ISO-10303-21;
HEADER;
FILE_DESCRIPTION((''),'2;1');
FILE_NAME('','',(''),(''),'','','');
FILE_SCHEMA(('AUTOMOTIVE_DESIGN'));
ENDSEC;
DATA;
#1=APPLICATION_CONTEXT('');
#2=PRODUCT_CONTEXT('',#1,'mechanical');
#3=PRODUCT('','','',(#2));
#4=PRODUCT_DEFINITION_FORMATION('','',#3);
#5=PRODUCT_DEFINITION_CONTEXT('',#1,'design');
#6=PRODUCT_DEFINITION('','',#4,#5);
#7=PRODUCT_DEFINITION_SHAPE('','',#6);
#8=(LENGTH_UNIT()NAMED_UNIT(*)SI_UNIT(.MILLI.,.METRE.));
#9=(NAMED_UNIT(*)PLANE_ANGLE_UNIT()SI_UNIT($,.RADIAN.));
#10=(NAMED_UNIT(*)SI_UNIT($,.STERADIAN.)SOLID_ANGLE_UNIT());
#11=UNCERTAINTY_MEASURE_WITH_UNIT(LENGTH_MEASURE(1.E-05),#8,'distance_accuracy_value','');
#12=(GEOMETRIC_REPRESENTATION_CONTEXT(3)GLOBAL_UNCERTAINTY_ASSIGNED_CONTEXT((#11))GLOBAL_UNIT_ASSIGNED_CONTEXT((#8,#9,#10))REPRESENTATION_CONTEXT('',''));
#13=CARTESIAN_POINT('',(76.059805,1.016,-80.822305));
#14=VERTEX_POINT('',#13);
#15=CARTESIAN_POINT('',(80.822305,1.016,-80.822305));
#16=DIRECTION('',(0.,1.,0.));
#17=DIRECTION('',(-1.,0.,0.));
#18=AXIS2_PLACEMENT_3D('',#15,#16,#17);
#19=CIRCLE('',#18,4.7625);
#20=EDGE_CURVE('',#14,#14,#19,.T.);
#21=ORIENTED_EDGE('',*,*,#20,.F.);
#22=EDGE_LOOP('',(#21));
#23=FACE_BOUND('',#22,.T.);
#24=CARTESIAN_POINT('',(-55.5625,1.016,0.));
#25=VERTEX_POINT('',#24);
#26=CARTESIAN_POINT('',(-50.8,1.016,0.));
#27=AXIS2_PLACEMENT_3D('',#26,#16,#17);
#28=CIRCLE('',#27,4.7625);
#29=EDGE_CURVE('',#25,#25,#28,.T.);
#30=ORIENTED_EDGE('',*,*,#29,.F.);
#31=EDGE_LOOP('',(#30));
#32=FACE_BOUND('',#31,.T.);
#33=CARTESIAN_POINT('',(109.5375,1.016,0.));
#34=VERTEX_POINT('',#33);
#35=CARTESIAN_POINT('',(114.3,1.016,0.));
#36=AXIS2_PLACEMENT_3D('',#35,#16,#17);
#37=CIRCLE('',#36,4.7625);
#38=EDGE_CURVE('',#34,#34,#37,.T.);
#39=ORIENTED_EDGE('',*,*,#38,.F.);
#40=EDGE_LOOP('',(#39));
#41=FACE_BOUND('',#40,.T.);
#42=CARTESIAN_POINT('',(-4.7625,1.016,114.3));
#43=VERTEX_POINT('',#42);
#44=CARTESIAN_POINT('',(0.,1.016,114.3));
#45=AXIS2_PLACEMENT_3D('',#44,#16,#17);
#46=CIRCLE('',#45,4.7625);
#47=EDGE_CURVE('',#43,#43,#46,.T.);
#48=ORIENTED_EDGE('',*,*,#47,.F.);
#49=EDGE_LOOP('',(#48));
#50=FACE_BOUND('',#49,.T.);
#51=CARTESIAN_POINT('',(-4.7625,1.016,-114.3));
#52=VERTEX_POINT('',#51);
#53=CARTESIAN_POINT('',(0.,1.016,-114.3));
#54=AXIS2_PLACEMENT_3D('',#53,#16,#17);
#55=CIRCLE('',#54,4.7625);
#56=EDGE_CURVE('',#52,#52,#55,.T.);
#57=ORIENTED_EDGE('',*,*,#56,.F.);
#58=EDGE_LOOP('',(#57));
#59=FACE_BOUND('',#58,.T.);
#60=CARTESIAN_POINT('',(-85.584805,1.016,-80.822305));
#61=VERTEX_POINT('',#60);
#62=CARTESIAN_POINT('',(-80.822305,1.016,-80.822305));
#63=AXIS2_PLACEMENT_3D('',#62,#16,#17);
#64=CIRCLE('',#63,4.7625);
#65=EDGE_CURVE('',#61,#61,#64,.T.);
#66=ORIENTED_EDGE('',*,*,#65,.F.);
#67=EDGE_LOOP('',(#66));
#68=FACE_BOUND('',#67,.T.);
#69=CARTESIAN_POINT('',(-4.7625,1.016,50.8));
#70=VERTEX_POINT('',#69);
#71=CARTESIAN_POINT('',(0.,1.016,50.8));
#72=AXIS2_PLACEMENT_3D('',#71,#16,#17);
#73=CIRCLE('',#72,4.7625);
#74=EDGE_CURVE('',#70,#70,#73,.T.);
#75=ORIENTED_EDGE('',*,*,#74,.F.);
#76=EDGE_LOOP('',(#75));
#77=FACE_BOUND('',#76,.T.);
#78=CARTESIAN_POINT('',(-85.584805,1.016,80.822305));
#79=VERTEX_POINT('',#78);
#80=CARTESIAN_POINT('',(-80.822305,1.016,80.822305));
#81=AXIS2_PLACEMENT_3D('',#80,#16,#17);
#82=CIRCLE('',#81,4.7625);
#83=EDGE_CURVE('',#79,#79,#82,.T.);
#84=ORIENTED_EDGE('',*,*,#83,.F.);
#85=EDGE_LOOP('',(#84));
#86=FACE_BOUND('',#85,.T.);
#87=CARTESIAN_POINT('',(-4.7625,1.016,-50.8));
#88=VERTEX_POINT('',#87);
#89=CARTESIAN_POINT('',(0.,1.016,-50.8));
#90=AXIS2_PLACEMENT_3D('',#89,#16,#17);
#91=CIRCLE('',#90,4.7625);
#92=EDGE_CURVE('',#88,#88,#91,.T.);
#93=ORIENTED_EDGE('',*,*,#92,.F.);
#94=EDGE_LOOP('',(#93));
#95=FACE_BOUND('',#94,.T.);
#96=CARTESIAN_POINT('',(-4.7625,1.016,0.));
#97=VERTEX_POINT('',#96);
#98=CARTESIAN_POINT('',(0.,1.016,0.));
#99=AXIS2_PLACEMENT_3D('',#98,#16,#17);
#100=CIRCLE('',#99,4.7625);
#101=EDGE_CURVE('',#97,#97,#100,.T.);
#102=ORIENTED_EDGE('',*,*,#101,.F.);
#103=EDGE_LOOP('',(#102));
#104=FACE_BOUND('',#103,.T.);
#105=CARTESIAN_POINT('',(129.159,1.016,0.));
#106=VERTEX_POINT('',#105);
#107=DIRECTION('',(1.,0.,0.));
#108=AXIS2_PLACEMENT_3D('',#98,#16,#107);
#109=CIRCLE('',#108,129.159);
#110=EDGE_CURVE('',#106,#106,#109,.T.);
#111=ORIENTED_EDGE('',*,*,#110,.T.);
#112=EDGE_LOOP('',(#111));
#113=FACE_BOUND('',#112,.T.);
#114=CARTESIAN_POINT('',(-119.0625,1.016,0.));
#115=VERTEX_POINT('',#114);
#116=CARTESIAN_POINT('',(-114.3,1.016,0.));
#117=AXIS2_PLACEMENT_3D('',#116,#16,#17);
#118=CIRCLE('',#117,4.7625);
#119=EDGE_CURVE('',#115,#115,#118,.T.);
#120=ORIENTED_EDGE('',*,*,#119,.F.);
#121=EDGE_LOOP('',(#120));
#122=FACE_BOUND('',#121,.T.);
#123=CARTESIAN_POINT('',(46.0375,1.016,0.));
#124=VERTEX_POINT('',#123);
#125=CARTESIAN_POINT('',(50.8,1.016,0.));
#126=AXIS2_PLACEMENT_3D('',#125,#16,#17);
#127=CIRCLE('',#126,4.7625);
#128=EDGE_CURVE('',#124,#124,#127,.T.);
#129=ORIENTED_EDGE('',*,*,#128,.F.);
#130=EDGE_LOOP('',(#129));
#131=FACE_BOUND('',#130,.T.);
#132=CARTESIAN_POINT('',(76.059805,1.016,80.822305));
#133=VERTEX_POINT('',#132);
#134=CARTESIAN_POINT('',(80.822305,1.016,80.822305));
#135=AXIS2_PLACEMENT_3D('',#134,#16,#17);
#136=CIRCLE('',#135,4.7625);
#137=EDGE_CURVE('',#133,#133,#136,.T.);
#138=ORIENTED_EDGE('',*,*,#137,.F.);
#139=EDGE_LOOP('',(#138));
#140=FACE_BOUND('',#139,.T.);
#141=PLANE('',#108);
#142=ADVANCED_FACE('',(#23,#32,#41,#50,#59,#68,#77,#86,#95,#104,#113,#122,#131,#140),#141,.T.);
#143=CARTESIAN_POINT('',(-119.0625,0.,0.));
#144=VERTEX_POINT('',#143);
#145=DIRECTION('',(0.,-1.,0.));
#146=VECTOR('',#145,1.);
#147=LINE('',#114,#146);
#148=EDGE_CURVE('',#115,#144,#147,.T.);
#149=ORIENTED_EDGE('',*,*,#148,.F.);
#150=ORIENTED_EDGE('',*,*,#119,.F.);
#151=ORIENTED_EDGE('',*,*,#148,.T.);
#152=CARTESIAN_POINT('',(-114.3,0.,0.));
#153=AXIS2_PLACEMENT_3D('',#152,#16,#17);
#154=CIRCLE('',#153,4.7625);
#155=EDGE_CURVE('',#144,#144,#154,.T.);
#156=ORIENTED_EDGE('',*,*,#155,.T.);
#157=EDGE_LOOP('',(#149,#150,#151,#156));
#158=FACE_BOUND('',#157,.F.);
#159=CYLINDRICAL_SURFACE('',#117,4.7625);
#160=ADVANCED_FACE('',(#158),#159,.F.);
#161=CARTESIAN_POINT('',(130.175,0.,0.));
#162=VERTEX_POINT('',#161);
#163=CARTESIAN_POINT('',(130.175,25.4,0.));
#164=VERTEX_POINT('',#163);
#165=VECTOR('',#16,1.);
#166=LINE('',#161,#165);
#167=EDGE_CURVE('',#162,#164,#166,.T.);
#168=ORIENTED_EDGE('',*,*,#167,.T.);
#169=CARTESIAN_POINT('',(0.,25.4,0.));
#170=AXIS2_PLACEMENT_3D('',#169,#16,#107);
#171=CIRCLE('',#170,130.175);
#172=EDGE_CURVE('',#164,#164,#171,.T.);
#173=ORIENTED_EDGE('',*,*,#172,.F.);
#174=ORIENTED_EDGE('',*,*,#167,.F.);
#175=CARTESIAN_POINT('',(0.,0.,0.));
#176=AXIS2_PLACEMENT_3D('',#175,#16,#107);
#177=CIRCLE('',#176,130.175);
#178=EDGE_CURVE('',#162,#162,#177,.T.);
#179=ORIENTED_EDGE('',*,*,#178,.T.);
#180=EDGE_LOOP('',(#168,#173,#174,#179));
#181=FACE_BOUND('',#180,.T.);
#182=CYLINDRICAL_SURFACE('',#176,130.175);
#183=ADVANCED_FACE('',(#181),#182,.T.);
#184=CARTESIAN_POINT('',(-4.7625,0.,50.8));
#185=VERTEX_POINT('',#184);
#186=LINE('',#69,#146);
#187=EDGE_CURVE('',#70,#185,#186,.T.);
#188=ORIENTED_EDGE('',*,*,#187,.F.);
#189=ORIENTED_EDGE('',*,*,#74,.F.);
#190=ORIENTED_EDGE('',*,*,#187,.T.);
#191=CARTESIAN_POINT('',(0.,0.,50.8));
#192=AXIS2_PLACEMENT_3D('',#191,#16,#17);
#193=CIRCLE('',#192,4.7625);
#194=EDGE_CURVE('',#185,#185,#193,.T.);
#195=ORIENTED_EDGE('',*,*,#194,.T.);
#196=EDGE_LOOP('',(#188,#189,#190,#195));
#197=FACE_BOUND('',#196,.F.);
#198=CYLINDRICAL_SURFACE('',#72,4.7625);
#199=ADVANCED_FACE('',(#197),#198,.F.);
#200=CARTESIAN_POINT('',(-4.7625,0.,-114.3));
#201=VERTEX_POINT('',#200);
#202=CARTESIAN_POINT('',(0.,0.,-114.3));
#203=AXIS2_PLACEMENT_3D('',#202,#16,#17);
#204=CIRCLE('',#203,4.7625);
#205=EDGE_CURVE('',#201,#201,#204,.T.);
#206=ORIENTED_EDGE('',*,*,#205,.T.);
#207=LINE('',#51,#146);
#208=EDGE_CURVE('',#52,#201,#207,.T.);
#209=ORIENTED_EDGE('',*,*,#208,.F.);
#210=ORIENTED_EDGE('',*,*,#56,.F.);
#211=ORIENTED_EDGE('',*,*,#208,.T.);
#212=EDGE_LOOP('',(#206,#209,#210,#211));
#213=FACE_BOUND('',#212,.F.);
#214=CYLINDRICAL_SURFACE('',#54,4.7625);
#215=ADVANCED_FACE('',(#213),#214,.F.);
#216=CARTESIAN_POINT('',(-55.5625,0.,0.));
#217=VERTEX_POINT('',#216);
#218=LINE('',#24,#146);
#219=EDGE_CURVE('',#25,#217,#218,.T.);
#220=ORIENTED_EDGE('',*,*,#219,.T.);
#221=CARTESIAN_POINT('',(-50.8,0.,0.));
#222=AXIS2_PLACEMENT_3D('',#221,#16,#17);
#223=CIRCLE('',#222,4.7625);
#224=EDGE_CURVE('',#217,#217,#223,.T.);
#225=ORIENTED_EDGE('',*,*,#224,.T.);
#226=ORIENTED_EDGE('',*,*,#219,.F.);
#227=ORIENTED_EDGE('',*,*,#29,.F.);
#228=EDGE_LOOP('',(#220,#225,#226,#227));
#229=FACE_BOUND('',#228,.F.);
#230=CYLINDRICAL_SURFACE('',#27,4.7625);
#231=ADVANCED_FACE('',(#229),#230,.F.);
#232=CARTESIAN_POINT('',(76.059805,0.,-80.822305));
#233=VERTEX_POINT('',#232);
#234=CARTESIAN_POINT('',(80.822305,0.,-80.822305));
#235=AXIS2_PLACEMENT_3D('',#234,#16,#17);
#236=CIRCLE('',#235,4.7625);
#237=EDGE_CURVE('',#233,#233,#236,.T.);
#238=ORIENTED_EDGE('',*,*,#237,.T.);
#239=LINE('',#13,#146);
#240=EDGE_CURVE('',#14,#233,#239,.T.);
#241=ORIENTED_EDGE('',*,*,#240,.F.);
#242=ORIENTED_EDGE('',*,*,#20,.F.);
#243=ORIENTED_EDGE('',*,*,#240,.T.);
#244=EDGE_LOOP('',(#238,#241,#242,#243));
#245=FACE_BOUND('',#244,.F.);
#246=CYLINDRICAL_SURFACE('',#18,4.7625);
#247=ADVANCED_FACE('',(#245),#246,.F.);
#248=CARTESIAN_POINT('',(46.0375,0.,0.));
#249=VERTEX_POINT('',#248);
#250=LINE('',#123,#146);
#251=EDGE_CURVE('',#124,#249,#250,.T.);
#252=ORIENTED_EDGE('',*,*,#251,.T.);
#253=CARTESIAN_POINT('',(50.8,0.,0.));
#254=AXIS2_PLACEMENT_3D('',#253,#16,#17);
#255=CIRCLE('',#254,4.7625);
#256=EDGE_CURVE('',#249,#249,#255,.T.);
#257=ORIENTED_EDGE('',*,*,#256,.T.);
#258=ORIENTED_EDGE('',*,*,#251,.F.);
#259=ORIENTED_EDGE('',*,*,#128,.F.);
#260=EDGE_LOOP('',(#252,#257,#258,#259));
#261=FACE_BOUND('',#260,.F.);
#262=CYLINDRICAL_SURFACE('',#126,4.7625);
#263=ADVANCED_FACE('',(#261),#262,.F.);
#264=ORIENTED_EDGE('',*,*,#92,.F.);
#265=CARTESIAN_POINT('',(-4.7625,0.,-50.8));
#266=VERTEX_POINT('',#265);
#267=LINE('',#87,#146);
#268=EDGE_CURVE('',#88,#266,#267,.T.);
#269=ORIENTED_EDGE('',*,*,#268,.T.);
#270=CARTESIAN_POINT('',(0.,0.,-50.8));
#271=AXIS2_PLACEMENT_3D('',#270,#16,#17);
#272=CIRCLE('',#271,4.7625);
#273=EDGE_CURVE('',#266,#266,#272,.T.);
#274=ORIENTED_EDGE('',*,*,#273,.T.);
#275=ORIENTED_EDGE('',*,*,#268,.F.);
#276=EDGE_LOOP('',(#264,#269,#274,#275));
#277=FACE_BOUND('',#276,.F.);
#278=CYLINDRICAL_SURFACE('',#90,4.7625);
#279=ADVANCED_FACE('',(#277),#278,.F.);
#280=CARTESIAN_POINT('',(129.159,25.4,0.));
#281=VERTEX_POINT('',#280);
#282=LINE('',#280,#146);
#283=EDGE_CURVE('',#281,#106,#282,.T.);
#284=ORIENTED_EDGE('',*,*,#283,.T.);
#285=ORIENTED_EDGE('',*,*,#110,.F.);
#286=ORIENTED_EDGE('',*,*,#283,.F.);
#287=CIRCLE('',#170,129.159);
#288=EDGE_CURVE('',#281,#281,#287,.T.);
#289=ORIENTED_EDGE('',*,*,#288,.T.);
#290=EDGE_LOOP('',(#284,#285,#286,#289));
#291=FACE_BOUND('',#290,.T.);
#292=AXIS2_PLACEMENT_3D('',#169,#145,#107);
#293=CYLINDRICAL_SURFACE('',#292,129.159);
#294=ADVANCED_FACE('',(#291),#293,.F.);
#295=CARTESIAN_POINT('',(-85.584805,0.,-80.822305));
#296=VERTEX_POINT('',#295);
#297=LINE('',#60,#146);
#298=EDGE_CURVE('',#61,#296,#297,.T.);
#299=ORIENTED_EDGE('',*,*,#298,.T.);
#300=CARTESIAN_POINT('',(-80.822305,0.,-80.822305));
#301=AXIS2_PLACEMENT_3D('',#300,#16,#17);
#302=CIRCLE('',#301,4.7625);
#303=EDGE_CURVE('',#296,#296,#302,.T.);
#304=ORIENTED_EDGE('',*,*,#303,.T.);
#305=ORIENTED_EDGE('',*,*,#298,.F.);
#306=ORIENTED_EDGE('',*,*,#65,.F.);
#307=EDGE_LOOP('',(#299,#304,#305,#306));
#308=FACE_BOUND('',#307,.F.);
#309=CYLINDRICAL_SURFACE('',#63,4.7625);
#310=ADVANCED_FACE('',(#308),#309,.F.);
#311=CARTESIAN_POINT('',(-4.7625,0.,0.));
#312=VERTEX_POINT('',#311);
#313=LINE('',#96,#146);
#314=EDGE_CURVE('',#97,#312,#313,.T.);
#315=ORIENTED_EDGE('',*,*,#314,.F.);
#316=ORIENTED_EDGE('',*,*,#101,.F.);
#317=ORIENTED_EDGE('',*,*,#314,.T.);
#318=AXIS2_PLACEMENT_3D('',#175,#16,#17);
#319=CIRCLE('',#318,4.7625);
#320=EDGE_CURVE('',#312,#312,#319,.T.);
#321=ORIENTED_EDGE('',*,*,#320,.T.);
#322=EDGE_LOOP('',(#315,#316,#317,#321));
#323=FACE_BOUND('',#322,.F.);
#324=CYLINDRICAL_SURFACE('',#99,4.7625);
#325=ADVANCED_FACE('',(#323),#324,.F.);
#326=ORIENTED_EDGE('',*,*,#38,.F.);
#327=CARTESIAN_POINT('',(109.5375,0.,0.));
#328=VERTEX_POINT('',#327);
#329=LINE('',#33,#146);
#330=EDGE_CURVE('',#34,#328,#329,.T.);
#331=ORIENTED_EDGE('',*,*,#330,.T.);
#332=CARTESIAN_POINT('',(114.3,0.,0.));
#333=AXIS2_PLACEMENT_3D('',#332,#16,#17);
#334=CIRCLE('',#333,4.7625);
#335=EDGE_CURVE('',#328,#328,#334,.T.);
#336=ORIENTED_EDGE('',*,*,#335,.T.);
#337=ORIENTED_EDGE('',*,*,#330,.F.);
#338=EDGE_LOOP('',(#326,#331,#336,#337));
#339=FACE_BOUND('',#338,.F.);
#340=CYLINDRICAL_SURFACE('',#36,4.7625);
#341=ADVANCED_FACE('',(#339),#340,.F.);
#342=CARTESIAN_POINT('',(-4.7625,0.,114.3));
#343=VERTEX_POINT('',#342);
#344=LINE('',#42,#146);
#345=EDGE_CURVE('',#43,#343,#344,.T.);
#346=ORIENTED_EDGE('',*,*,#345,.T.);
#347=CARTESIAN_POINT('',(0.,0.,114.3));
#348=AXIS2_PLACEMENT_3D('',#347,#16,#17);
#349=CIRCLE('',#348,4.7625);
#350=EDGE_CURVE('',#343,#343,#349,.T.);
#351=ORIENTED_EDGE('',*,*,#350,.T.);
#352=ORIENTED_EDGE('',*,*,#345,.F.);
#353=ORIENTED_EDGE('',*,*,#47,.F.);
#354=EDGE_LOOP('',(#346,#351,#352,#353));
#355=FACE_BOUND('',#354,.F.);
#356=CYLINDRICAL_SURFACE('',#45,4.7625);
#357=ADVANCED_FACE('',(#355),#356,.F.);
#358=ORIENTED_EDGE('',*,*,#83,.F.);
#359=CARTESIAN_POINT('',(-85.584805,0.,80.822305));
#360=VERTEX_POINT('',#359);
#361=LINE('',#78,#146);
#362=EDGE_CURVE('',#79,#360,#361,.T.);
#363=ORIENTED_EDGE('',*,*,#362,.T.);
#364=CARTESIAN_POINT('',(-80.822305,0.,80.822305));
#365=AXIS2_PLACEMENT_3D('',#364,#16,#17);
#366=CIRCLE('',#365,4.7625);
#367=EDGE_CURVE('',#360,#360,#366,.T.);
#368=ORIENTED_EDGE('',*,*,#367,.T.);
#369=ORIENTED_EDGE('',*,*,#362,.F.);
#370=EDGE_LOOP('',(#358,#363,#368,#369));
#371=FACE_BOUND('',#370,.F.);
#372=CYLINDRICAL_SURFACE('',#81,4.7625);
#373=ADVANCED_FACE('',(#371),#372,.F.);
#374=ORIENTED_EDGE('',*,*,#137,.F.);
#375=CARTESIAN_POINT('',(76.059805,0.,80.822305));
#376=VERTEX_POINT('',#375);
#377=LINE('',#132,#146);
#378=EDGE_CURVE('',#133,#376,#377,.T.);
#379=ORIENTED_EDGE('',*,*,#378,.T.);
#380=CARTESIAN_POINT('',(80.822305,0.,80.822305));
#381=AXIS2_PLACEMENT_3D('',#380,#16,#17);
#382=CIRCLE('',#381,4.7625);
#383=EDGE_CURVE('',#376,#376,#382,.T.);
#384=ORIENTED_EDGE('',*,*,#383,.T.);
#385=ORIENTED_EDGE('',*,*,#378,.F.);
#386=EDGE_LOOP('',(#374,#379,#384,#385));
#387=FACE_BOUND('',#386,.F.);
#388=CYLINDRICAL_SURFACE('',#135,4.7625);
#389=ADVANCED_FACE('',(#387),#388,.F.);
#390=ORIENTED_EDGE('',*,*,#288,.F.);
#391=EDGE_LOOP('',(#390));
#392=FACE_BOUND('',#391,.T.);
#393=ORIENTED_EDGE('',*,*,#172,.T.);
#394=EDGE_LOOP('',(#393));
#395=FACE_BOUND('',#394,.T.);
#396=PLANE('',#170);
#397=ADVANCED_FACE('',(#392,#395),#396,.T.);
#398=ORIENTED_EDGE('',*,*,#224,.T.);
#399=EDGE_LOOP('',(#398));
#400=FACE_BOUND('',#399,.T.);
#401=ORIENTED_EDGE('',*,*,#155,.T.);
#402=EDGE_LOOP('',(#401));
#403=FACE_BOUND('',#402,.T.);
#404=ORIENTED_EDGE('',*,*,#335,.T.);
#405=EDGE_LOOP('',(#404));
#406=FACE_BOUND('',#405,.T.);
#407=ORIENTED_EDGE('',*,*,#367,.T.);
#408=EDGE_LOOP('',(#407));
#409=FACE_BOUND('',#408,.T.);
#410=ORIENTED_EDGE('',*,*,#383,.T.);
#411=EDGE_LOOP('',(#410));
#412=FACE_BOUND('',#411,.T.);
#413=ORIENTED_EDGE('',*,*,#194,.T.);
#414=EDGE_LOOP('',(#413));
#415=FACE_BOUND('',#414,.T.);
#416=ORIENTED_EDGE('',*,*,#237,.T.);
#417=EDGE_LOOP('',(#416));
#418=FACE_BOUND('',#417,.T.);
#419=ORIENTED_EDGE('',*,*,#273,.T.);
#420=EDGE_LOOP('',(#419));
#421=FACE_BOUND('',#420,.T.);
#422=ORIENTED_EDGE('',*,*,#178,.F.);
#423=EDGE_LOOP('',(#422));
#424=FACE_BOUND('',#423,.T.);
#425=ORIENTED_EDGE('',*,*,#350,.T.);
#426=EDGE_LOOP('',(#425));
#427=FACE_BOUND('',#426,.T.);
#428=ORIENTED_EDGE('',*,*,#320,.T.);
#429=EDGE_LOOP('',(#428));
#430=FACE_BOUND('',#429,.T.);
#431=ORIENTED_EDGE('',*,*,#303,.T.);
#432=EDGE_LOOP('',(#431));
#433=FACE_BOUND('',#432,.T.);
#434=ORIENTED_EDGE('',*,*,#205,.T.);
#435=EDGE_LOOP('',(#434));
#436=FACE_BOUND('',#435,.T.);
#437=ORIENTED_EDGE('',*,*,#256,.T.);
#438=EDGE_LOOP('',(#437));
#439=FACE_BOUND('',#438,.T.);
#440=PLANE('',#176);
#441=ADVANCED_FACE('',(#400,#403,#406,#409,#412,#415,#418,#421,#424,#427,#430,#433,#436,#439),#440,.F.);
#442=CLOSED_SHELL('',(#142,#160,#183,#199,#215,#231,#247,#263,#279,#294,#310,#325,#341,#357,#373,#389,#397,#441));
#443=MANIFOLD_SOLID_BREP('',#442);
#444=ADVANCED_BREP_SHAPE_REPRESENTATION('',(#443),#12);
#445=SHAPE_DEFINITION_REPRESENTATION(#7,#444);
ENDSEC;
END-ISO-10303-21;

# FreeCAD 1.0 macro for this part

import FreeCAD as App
import Part
import Sketcher
from FreeCAD import Vector
Q = App.Units.Quantity

doc = App.newDocument("Part")
body = doc.addObject("PartDesign::Body", "Body")

sketch1 = doc.addObject("Sketcher::SketchObject", "Sketch")
body.addObject(sketch1)
sketch1.AttachmentSupport = (doc.XY_Plane, [""])
sketch1.MapMode = "FlatFace"
sketch1.addGeometry([
    Part.LineSegment(Vector(0, 1, 0), Vector(0, 0, 0)),
    Part.LineSegment(Vector(0, 0, 0), Vector(130.2, 0, 0)),
    Part.LineSegment(Vector(130.2, 0, 0), Vector(130.2, 25.4, 0)),
    Part.LineSegment(Vector(130.2, 25.4, 0), Vector(129.2, 25.4, 0)),
    Part.LineSegment(Vector(129.2, 25.4, 0), Vector(129.2, 1, 0)),
    Part.LineSegment(Vector(129.2, 1, 0), Vector(0, 1, 0)),
], False)
sketch1.addConstraint([
    Sketcher.Constraint("Coincident", 0, 2, 1, 1),
    Sketcher.Constraint("Coincident", 1, 2, 2, 1),
    Sketcher.Constraint("Coincident", 2, 2, 3, 1),
    Sketcher.Constraint("Coincident", 3, 2, 4, 1),
    Sketcher.Constraint("Coincident", 4, 2, 5, 1),
    Sketcher.Constraint("Coincident", 5, 2, 0, 1),
    Sketcher.Constraint("Vertical", 0),
    Sketcher.Constraint("Horizontal", 1),
    Sketcher.Constraint("Vertical", 2),
    Sketcher.Constraint("Horizontal", 3),
    Sketcher.Constraint("Vertical", 4),
    Sketcher.Constraint("Horizontal", 5),
    Sketcher.Constraint("Coincident", 0, 2, -1, 1),
    Sketcher.Constraint("Equal", 3, 0),
    Sketcher.Constraint("DistanceY", 2, 1, 2, 2, Q("1 in")),
    Sketcher.Constraint("DistanceX", 3, 2, 3, 1, Q("0.04 in")),
    Sketcher.Constraint("DistanceX", 1, 1, 1, 2, Q("5.125 in")),
])
revolution = doc.addObject("PartDesign::Revolution", "Revolution")
body.addObject(revolution)
revolution.Profile = sketch1
revolution.ReferenceAxis = (sketch1, ["V_Axis"])
revolution.Angle = 360

sketch2 = doc.addObject("Sketcher::SketchObject", "Sketch001")
body.addObject(sketch2)
sketch2.AttachmentSupport = (doc.XZ_Plane, [""])
sketch2.MapMode = "FlatFace"
sketch2.AttachmentOffset = App.Placement(Vector(0, 0, -0.04 * 25.4), App.Rotation())
sketch2.addGeometry([
    Part.Circle(Vector(0, 0, 0), Vector(0, 0, 1), 4.8),
    Part.Circle(Vector(0, -50.8, 0), Vector(0, 0, 1), 4.8),
    Part.Circle(Vector(0, -114.3, 0), Vector(0, 0, 1), 4.8),
    Part.Circle(Vector(50.8, 0, 0), Vector(0, 0, 1), 4.8),
    Part.Circle(Vector(0, 50.8, 0), Vector(0, 0, 1), 4.8),
    Part.Circle(Vector(80.8, 80.8, 0), Vector(0, 0, 1), 4.8),
    Part.Circle(Vector(-80.8, 80.8, 0), Vector(0, 0, 1), 4.8),
    Part.Circle(Vector(-114.3, 0, 0), Vector(0, 0, 1), 4.8),
    Part.Circle(Vector(-80.8, -80.8, 0), Vector(0, 0, 1), 4.8),
    Part.Circle(Vector(80.8, -80.8, 0), Vector(0, 0, 1), 4.8),
    Part.Circle(Vector(0, 114.3, 0), Vector(0, 0, 1), 4.8),
    Part.Circle(Vector(-50.8, 0, 0), Vector(0, 0, 1), 4.8),
    Part.Circle(Vector(114.3, 0, 0), Vector(0, 0, 1), 4.8),
], False)
sketch2.addConstraint([
    Sketcher.Constraint("Coincident", 0, 3, -1, 1),
    Sketcher.Constraint("Equal", 0, 1),
    Sketcher.Constraint("Equal", 1, 2),
    Sketcher.Constraint("Equal", 2, 3),
    Sketcher.Constraint("Equal", 3, 4),
    Sketcher.Constraint("Equal", 4, 5),
    Sketcher.Constraint("Equal", 5, 6),
    Sketcher.Constraint("Equal", 6, 7),
    Sketcher.Constraint("Equal", 7, 8),
    Sketcher.Constraint("Equal", 8, 9),
    Sketcher.Constraint("Equal", 9, 10),
    Sketcher.Constraint("Equal", 10, 11),
    Sketcher.Constraint("Equal", 11, 12),
    Sketcher.Constraint("Symmetric", 1, 3, 4, 3, -1, 1),
    Sketcher.Constraint("Symmetric", 5, 3, 8, 3, -1, 1),
    Sketcher.Constraint("Symmetric", 6, 3, 9, 3, -1, 1),
    Sketcher.Constraint("Symmetric", 2, 3, 10, 3, -1, 1),
    Sketcher.Constraint("Symmetric", 3, 3, 11, 3, -1, 1),
    Sketcher.Constraint("Symmetric", 7, 3, 12, 3, -1, 1),
    Sketcher.Constraint("Symmetric", 5, 3, 6, 3, -2),
    Sketcher.Constraint("PointOnObject", 1, 3, -2),
    Sketcher.Constraint("PointOnObject", 2, 3, -2),
    Sketcher.Constraint("PointOnObject", 3, 3, -1),
    Sketcher.Constraint("PointOnObject", 7, 3, -1),
    Sketcher.Constraint("Diameter", 0, Q("0.375 in")),
    Sketcher.Constraint("DistanceY", 1, 3, -1, 1, Q("2 in")),
    Sketcher.Constraint("DistanceX", -1, 1, 3, 3, Q("2 in")),
    Sketcher.Constraint("DistanceY", 2, 3, -1, 1, Q("4.5 in")),
    Sketcher.Constraint("DistanceX", 7, 3, -1, 1, Q("4.5 in")),
    Sketcher.Constraint("DistanceX", 6, 3, 5, 3, 161.64461),
    Sketcher.Constraint("DistanceY", -1, 1, 5, 3, 80.822305),
])
pocket1 = doc.addObject("PartDesign::Pocket", "Pocket")
body.addObject(pocket1)
pocket1.Profile = sketch2
pocket1.Type = "ThroughAll"
pocket1.Reversed = True

doc.recompute()
